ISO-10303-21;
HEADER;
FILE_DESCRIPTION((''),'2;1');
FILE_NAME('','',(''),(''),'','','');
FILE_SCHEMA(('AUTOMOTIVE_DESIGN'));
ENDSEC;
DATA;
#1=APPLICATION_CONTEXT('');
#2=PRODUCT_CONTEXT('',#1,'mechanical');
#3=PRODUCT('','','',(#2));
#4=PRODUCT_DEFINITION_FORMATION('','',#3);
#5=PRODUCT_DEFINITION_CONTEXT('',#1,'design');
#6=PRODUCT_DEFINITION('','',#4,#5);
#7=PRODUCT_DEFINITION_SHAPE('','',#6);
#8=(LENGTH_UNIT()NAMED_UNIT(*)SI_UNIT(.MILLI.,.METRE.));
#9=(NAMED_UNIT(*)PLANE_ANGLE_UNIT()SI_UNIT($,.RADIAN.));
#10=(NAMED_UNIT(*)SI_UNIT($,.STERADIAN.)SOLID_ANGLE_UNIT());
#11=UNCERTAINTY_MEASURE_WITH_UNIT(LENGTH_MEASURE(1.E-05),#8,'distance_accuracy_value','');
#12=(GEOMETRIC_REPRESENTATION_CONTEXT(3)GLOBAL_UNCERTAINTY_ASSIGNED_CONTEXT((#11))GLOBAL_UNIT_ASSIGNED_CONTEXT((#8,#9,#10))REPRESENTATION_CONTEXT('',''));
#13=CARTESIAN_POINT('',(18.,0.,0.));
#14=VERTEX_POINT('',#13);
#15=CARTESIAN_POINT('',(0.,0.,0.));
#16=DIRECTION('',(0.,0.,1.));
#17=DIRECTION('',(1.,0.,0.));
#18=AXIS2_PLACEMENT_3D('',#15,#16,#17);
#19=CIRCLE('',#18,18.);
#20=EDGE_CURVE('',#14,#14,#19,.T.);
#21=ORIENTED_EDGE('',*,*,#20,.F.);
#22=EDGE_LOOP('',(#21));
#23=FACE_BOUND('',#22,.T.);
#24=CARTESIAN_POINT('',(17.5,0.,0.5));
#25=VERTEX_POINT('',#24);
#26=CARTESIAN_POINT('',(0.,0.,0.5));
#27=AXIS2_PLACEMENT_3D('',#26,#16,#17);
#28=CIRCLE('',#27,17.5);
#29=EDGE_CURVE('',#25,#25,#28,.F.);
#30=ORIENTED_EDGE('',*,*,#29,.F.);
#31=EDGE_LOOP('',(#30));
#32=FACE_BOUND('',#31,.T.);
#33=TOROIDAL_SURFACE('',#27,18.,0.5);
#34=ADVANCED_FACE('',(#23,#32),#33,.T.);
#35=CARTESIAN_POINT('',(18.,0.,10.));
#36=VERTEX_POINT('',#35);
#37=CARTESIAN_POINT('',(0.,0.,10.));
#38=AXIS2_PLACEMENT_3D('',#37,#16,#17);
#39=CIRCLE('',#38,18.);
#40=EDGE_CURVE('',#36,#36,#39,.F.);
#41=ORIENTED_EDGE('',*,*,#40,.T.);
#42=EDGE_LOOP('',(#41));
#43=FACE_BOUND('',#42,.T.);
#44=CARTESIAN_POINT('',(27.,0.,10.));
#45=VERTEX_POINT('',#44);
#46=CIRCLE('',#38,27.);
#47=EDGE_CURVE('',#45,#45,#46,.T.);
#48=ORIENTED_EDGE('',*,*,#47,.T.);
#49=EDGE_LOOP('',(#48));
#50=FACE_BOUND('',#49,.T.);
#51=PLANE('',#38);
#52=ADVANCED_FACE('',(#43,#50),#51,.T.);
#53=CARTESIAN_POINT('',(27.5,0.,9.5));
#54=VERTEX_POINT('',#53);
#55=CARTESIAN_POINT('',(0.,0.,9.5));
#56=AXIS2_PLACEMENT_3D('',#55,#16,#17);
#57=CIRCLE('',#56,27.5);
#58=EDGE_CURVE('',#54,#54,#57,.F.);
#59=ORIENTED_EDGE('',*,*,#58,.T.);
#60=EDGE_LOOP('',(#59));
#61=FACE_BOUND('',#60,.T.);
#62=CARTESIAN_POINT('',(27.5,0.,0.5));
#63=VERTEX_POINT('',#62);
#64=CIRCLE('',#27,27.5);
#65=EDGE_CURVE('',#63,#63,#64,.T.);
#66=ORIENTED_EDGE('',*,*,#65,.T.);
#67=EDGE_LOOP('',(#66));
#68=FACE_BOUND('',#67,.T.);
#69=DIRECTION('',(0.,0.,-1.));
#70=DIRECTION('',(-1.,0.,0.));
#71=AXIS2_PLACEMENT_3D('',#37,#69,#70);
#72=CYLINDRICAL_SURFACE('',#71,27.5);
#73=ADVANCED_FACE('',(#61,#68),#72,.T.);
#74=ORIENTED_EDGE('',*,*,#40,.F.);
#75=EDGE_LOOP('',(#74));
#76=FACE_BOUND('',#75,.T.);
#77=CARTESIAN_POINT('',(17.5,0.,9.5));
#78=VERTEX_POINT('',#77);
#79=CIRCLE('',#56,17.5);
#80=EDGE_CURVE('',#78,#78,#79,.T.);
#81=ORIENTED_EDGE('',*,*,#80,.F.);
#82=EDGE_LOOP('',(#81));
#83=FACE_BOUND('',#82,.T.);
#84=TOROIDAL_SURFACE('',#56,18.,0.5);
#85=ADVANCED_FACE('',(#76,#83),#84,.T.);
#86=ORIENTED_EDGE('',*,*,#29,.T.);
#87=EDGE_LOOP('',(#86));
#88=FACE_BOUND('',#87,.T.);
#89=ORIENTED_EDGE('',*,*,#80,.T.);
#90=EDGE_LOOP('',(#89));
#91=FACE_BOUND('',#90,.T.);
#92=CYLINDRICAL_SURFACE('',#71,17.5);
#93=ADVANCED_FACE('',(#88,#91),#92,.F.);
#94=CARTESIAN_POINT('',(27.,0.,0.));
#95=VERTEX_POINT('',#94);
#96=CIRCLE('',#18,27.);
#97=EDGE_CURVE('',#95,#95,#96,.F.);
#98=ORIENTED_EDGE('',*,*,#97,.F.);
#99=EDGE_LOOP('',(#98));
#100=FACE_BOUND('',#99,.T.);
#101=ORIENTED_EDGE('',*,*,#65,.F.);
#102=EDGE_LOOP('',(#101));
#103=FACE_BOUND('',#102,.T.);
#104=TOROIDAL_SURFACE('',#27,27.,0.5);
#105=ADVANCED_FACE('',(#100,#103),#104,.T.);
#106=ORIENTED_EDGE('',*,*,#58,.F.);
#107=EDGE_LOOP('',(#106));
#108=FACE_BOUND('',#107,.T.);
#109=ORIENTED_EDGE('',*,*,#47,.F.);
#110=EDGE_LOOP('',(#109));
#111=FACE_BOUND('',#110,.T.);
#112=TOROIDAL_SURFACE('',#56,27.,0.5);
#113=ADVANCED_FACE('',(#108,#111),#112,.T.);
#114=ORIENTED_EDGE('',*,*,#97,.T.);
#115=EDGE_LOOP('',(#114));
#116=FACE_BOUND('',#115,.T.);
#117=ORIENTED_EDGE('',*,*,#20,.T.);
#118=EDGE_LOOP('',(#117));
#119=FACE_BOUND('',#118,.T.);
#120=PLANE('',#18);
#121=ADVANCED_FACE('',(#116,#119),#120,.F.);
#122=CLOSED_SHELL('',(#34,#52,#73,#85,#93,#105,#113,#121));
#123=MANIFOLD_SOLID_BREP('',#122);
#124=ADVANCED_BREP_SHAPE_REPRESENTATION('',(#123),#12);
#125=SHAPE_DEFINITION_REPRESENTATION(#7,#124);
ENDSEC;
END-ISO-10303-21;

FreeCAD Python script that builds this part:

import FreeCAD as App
import Part
import Sketcher
from FreeCAD import Vector


def edges_at(feature, points):
    """Names of the edges that pass closest to the given points."""
    edges = feature.Shape.Edges
    near = lambda p: min(range(len(edges)), key=lambda i: edges[i].distToShape(Part.Vertex(*p))[0])
    return sorted({f"Edge{near(p) + 1}" for p in points})

doc = App.newDocument("Part")
body = doc.addObject("PartDesign::Body", "Body")

sketch1 = doc.addObject("Sketcher::SketchObject", "Sketch")
body.addObject(sketch1)
sketch1.AttachmentSupport = (doc.XY_Plane, [""])
sketch1.MapMode = "FlatFace"
sketch1.addGeometry([
    Part.Circle(Vector(0, 0, 0), Vector(0, 0, 1), 27.5),
    Part.Circle(Vector(0, 0, 0), Vector(0, 0, 1), 17.5),
], False)
sketch1.addConstraint([
    Sketcher.Constraint("Coincident", 0, 3, -1, 1),
    Sketcher.Constraint("Coincident", 1, 3, -1, 1),
    Sketcher.Constraint("Diameter", 0, 55.0),
    Sketcher.Constraint("Diameter", 1, 35.0),
])
pad1 = doc.addObject("PartDesign::Pad", "Pad")
body.addObject(pad1)
pad1.Profile = sketch1
pad1.Length = 10
doc.recompute()

fillet = doc.addObject("PartDesign::Fillet", "Fillet")
body.addObject(fillet)
fillet.Base = (pad1, edges_at(pad1, [
    (-27.5, 0, 0),
    (-27.5, 0, 10),
    (-17.5, 0, 0),
    (-17.5, 0, 10),
]))
fillet.Radius = 0.5

doc.recompute()
